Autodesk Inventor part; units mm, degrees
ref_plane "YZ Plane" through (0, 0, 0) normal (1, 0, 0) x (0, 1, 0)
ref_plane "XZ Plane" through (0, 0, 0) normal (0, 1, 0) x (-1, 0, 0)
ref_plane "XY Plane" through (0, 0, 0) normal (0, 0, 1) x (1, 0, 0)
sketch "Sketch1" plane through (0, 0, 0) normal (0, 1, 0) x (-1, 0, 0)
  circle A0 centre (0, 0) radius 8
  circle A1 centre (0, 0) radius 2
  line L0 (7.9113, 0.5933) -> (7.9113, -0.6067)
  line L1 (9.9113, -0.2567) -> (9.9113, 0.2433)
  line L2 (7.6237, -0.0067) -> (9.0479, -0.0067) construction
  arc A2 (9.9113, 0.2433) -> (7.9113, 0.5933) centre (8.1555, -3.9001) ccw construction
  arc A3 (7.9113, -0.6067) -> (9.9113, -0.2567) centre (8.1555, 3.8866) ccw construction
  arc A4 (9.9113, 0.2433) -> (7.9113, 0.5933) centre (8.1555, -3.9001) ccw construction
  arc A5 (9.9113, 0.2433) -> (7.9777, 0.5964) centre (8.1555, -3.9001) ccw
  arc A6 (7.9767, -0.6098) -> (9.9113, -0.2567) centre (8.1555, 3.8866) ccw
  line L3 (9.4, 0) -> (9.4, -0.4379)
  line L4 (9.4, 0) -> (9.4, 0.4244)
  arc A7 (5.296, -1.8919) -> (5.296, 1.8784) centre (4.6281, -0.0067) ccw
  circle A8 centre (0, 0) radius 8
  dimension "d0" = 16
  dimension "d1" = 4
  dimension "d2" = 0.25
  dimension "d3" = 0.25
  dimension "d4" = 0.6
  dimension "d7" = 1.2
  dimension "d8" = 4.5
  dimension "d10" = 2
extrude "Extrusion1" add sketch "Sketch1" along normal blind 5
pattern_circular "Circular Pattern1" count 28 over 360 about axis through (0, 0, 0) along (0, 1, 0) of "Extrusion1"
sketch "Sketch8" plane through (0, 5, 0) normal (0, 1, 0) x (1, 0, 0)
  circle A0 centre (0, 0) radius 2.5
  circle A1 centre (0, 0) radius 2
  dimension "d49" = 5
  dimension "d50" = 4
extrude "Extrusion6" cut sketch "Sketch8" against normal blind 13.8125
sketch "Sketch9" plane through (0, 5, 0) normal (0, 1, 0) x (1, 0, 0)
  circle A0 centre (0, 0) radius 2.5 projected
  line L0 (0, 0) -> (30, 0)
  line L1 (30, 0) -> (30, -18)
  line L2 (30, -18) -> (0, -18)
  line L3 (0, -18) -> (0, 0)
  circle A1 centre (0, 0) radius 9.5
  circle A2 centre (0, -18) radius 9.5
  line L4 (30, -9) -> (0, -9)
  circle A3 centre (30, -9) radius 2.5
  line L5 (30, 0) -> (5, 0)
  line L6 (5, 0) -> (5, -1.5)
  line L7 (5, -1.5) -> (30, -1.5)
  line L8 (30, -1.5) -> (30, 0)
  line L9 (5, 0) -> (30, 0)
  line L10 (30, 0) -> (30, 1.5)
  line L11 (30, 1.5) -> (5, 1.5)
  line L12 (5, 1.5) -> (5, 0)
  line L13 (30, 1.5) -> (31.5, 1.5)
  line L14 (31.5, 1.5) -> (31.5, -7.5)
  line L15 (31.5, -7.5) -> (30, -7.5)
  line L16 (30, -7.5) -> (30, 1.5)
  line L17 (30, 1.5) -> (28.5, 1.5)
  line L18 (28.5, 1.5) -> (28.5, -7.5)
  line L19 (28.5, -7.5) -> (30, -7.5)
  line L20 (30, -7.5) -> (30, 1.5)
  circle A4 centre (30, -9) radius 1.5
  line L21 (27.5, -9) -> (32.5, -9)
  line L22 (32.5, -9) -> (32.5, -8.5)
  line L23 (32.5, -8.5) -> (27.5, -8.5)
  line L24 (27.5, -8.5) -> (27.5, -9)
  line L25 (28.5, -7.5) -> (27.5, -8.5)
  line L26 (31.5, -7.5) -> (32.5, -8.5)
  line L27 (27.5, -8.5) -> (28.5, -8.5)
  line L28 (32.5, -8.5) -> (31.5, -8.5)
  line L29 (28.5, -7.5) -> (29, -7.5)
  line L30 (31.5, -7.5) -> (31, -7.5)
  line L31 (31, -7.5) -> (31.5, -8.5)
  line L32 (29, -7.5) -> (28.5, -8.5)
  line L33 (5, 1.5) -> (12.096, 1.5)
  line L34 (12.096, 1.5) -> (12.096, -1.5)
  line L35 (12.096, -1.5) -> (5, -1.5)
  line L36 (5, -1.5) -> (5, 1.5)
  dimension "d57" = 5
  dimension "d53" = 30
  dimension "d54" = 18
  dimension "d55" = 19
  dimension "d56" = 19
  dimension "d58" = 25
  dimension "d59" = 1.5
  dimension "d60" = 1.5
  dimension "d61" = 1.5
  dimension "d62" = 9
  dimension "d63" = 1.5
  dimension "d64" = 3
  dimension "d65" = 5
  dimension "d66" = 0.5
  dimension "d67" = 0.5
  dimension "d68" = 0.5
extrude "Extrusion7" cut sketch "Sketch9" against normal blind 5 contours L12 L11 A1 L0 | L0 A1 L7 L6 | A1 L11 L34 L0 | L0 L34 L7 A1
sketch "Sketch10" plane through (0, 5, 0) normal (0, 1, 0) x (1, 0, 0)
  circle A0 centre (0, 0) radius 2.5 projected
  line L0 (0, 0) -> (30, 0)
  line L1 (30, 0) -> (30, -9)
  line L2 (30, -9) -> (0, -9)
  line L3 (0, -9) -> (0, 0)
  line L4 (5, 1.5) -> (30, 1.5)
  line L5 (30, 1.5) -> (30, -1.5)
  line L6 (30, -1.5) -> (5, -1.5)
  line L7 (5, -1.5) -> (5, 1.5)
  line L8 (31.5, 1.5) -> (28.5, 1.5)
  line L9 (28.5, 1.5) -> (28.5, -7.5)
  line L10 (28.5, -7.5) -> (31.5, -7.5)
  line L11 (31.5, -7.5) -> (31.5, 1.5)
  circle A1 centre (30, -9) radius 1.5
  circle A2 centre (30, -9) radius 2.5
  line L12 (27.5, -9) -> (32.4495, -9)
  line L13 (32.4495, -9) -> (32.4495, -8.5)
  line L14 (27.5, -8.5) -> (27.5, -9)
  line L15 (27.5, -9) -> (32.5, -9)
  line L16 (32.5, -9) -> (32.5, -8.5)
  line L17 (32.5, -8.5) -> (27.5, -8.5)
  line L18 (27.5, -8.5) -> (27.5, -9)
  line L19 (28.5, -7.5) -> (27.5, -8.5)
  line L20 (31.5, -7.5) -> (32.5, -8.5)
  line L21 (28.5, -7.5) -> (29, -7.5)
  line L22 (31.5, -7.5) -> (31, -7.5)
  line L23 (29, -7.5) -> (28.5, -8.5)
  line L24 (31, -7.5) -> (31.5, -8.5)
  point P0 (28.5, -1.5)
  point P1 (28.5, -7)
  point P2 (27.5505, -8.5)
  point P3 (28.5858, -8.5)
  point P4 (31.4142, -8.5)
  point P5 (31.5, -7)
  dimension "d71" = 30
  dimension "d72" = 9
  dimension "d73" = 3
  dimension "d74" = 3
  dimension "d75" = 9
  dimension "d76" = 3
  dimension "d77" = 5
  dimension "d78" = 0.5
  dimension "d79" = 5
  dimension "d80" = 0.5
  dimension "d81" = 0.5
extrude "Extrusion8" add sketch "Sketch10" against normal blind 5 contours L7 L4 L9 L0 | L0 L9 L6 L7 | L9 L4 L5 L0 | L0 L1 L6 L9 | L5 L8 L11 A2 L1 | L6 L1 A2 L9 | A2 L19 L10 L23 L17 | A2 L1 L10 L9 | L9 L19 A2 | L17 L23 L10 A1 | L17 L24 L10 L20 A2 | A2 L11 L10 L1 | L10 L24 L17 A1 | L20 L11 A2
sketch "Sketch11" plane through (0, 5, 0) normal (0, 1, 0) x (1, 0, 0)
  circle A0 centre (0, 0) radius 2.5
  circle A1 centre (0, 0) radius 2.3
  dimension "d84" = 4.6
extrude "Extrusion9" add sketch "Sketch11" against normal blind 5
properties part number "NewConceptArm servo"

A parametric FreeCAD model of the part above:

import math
import FreeCAD as App
import Part
import Sketcher

V = App.Vector
Q = App.Units.Quantity


def add_polygon(sketch, points):
    """Adds a closed chain of lines whose ends are joined by coincident constraints."""
    first, n = sketch.GeometryCount, len(points)
    for a, b in zip(points, points[1:] + points[:1]):
        sketch.addGeometry(Part.LineSegment(App.Vector(*a, 0), App.Vector(*b, 0)), False)
    for i in range(n):
        sketch.addConstraint(Sketcher.Constraint("Coincident", first + i, 2, first + (i + 1) % n, 1))

doc = App.newDocument("Part")
body = doc.addObject("PartDesign::Body", "Body")

sketch1 = body.newObject("Sketcher::SketchObject", "Sketch")
sketch1.AttachmentSupport = (doc.getObject("XZ_Plane"), [""])
sketch1.MapMode = "FlatFace"
sketch1.addGeometry([
    Part.ArcOfCircle(Part.Circle(V(0, 0, 0), V(0, 0, 1), 8), math.radians(-175.628375), math.radians(175.724613)),
    Part.ArcOfCircle(Part.Circle(V(-8.1555, 3.8866, 0), V(0, 0, 1), 4.499954), math.radians(-112.9657), math.radians(-87.722825)),
    Part.LineSegment(V(-9.9113, -0.2567, 0), V(-9.9113, 0.2433, 0)),
    Part.ArcOfCircle(Part.Circle(V(-8.155813, -3.899053, 0), V(0, 0, 1), 4.49898), math.radians(87.731084), math.radians(112.966733)),
    Part.Circle(V(0, 0, 0), V(0, 0, 1), 2),
], False)
sketch1.addConstraint([
    Sketcher.Constraint("Coincident", 0, 1, 1, 2),
    Sketcher.Constraint("Coincident", 1, 1, 2, 1),
    Sketcher.Constraint("Coincident", 2, 2, 3, 2),
    Sketcher.Constraint("Coincident", 3, 1, 0, 2),
    Sketcher.Constraint("Vertical", 2),
    Sketcher.Constraint("Coincident", 0, 3, -1, 1),
    Sketcher.Constraint("Coincident", 4, 3, -1, 1),
    Sketcher.Constraint("Diameter", 4, Q("4 mm")),
    Sketcher.Constraint("Radius", 0, Q("8 mm")),
    Sketcher.Constraint("Radius", 1, Q("4.5 mm")),
    Sketcher.Constraint("DistanceY", 2, 1, 2, 2, Q("0.5 mm")),
    Sketcher.Constraint("Radius", 3, Q("4.499 mm")),
    Sketcher.Constraint("DistanceY", 3, 3, -1, 1, Q("3.899 mm")),
    Sketcher.Constraint("DistanceX", 3, 3, 0, 1, Q("0.179 mm")),
    Sketcher.Constraint("DistanceY", 0, 1, 2, 2, Q("0.853 mm")),
    Sketcher.Constraint("DistanceX", 3, 1, 0, 1, Q("0.001 mm")),
])
pad1 = body.newObject("PartDesign::Pad", "Pad")
pad1.Profile = sketch1
pad1.Length = 5
pad1.Reversed = True
doc.recompute()

polarpattern = body.newObject("PartDesign::PolarPattern", "PolarPattern")
polarpattern.Originals = [pad1]
polarpattern.Axis = (doc.getObject("Y_Axis"), [""])
polarpattern.Angle = 360
polarpattern.Occurrences = 28
body.Tip = polarpattern

sketch2 = body.newObject("Sketcher::SketchObject", "Sketch001")
sketch2.AttachmentSupport = (doc.getObject("XZ_Plane"), [""])
sketch2.MapMode = "FlatFace"
sketch2.AttachmentOffset = App.Placement(V(0, 0, -5), App.Rotation())
sketch2.addGeometry([
    Part.Circle(V(0, 0, 0), V(0, 0, 1), 2.5),
    Part.Circle(V(0, 0, 0), V(0, 0, 1), 2),
], False)
sketch2.addConstraint([
    Sketcher.Constraint("Coincident", 0, 3, -1, 1),
    Sketcher.Constraint("Coincident", 1, 3, -1, 1),
    Sketcher.Constraint("Diameter", 0, Q("5 mm")),
    Sketcher.Constraint("Diameter", 1, Q("4 mm")),
])
pocket1 = body.newObject("PartDesign::Pocket", "Pocket")
pocket1.Profile = sketch2
pocket1.Length = 13.8125
pocket1.Reversed = True

sketch3 = body.newObject("Sketcher::SketchObject", "Sketch002")
sketch3.AttachmentSupport = (doc.getObject("XZ_Plane"), [""])
sketch3.MapMode = "FlatFace"
sketch3.AttachmentOffset = App.Placement(V(0, 0, -5), App.Rotation())
add_polygon(sketch3, [(5, -1.5), (5, 1.5), (12.096, 1.5), (12.096, -1.5)])
sketch3.addConstraint([
    Sketcher.Constraint("Vertical", 0),
    Sketcher.Constraint("Horizontal", 1),
    Sketcher.Constraint("Vertical", 2),
    Sketcher.Constraint("Horizontal", 3),
    Sketcher.Constraint("DistanceY", 0, 1, 0, 2, Q("3 mm")),
    Sketcher.Constraint("DistanceX", -1, 1, 0, 2, Q("5 mm")),
    Sketcher.Constraint("DistanceY", -1, 1, 0, 2, Q("1.5 mm")),
    Sketcher.Constraint("DistanceX", 1, 1, 1, 2, Q("7.096 mm")),
])
pocket2 = body.newObject("PartDesign::Pocket", "Pocket001")
pocket2.Profile = sketch3
pocket2.Length = 5
pocket2.Reversed = True

sketch4 = body.newObject("Sketcher::SketchObject", "Sketch003")
sketch4.AttachmentSupport = (doc.getObject("XZ_Plane"), [""])
sketch4.MapMode = "FlatFace"
sketch4.AttachmentOffset = App.Placement(V(0, 0, -5), App.Rotation())
sketch4.addGeometry([
    Part.LineSegment(V(5, -1.5, 0), V(5, 1.5, 0)),
    Part.LineSegment(V(5, 1.5, 0), V(28.5, 1.5, 0)),
    Part.LineSegment(V(28.5, 1.5, 0), V(28.5, 7, 0)),
    Part.ArcOfCircle(Part.Circle(V(30, 9, 0), V(0, 0, 1), 2.5), math.radians(-168.463041), math.radians(-126.869898)),
    Part.LineSegment(V(27.55051, 8.5, 0), V(28.585786, 8.5, 0)),
    Part.ArcOfCircle(Part.Circle(V(30, 9, 0), V(0, 0, 1), 1.5), math.radians(-160.528779), math.radians(-19.471221)),
    Part.LineSegment(V(31.414214, 8.5, 0), V(32.4495, 8.5, 0)),
    Part.ArcOfCircle(Part.Circle(V(30, 9, 0), V(0, 0, 1), 2.5), math.radians(-53.130102), math.radians(-11.536912)),
    Part.LineSegment(V(31.5, 7, 0), V(31.5, -1.5, 0)),
    Part.LineSegment(V(31.5, -1.5, 0), V(5, -1.5, 0)),
], False)
sketch4.addConstraint([
    Sketcher.Constraint("Coincident", 0, 2, 1, 1),
    Sketcher.Constraint("Coincident", 1, 2, 2, 1),
    Sketcher.Constraint("Coincident", 2, 2, 3, 2),
    Sketcher.Constraint("Coincident", 3, 1, 4, 1),
    Sketcher.Constraint("Coincident", 4, 2, 5, 1),
    Sketcher.Constraint("Coincident", 5, 2, 6, 1),
    Sketcher.Constraint("Coincident", 6, 2, 7, 2),
    Sketcher.Constraint("Coincident", 7, 1, 8, 1),
    Sketcher.Constraint("Coincident", 8, 2, 9, 1),
    Sketcher.Constraint("Coincident", 9, 2, 0, 1),
    Sketcher.Constraint("Vertical", 0),
    Sketcher.Constraint("Horizontal", 1),
    Sketcher.Constraint("Vertical", 2),
    Sketcher.Constraint("Horizontal", 4),
    Sketcher.Constraint("Horizontal", 6),
    Sketcher.Constraint("Vertical", 8),
    Sketcher.Constraint("Horizontal", 9),
    Sketcher.Constraint("Coincident", 5, 3, 3, 3),
    Sketcher.Constraint("Coincident", 7, 3, 3, 3),
    Sketcher.Constraint("Equal", 3, 7),
    Sketcher.Constraint("Horizontal", 4, 2, 5, 2),
    Sketcher.Constraint("Horizontal", 2, 2, 7, 1),
    Sketcher.Constraint("Radius", 3, Q("2.5 mm")),
    Sketcher.Constraint("Radius", 5, Q("1.5 mm")),
    Sketcher.Constraint("DistanceY", 0, 1, 0, 2, Q("3 mm")),
    Sketcher.Constraint("DistanceX", -1, 1, 3, 3, Q("30 mm")),
    Sketcher.Constraint("DistanceY", -1, 1, 3, 3, Q("9 mm")),
    Sketcher.Constraint("DistanceX", -1, 1, 0, 2, Q("5 mm")),
    Sketcher.Constraint("DistanceX", 1, 2, 8, 2, Q("3 mm")),
    Sketcher.Constraint("DistanceY", 3, 1, 3, 3, Q("0.5 mm")),
    Sketcher.Constraint("DistanceY", 2, 1, 2, 2, Q("5.5 mm")),
])
pad2 = body.newObject("PartDesign::Pad", "Pad001")
pad2.Profile = sketch4
pad2.Length = 5

sketch5 = body.newObject("Sketcher::SketchObject", "Sketch004")
sketch5.AttachmentSupport = (doc.getObject("XZ_Plane"), [""])
sketch5.MapMode = "FlatFace"
sketch5.AttachmentOffset = App.Placement(V(0, 0, -5), App.Rotation())
sketch5.addGeometry([
    Part.Circle(V(0, 0, 0), V(0, 0, 1), 2.5),
    Part.Circle(V(0, 0, 0), V(0, 0, 1), 2.3),
], False)
sketch5.addConstraint([
    Sketcher.Constraint("Coincident", 0, 3, -1, 1),
    Sketcher.Constraint("Coincident", 1, 3, -1, 1),
    Sketcher.Constraint("Diameter", 1, Q("4.6 mm")),
    Sketcher.Constraint("Diameter", 0, Q("5 mm")),
])
pad3 = body.newObject("PartDesign::Pad", "Pad002")
pad3.Profile = sketch5
pad3.Length = 5

doc.recompute()
